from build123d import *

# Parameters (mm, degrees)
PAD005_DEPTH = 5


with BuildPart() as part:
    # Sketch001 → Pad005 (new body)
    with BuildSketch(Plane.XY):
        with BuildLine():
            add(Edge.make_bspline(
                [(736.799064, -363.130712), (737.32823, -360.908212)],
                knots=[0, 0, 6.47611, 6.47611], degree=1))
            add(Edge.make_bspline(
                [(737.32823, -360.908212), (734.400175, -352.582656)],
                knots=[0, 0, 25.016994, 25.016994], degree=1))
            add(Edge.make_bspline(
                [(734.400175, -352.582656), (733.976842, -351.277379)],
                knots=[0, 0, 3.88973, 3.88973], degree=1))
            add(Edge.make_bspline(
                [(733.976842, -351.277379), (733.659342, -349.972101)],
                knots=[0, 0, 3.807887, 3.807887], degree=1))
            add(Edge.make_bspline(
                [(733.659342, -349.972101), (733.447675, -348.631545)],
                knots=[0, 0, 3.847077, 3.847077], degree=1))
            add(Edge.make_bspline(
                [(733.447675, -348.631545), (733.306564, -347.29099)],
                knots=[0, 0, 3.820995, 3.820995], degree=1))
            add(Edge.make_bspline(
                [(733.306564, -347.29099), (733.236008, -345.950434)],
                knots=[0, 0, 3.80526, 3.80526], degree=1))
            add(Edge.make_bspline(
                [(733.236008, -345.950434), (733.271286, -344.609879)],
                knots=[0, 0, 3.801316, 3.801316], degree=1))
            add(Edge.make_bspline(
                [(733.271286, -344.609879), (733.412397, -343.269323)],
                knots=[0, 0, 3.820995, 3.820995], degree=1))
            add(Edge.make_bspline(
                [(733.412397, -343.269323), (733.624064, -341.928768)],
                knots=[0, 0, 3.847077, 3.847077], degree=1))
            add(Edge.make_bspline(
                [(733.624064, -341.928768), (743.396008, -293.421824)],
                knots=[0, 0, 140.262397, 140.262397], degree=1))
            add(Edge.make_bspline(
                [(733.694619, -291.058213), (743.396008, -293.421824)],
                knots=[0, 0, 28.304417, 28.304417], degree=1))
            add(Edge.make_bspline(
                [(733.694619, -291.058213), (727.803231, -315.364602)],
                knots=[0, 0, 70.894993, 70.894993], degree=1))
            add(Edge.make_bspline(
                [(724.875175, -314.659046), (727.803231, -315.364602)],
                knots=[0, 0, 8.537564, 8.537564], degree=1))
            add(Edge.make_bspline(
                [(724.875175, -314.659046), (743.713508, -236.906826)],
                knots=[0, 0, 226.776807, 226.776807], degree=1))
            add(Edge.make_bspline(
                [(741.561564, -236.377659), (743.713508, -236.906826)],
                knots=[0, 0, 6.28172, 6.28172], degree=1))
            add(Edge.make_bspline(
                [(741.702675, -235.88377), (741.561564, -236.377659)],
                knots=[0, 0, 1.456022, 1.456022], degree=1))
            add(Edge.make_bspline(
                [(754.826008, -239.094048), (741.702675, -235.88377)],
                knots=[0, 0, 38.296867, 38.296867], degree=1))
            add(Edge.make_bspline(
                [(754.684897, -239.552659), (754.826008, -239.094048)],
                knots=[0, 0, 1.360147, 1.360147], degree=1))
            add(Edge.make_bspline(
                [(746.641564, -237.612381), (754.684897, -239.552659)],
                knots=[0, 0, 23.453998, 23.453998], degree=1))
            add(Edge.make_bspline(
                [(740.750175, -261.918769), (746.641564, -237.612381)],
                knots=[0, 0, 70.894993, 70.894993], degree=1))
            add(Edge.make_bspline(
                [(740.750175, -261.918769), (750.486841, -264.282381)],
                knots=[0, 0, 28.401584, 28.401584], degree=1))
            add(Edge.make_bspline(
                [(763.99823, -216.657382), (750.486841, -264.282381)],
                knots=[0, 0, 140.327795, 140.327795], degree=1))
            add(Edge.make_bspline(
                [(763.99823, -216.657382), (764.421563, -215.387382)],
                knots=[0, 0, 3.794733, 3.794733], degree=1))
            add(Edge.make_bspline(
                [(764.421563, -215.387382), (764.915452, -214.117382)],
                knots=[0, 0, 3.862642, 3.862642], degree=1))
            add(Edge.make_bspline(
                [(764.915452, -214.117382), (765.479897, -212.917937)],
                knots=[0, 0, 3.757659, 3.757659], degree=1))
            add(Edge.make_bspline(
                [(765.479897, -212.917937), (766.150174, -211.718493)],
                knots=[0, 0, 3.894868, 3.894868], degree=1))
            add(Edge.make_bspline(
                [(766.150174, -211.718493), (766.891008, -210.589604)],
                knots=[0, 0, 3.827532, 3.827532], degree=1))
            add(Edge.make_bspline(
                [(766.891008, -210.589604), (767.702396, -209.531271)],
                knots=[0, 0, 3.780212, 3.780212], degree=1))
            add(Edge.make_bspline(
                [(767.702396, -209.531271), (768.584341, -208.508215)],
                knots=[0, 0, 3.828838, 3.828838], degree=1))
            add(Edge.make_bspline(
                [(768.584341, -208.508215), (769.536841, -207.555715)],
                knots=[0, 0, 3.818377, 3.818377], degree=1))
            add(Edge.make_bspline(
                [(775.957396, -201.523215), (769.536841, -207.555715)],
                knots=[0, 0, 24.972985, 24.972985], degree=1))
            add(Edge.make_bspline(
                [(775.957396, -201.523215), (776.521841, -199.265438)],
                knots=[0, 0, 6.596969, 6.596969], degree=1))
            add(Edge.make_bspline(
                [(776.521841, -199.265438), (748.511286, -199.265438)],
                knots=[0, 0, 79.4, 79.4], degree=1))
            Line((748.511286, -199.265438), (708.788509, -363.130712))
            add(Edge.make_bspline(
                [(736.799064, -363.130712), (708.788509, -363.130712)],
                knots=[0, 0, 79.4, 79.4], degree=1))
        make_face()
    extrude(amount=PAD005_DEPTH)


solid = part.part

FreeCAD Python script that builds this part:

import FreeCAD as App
import Part
import Sketcher

doc = App.newDocument("Part")
body = doc.addObject("PartDesign::Body", "Body")

# Sketch on XY plane
sketch1 = doc.addObject("Sketcher::SketchObject", "Sketch")
body.addObject(sketch1)
sketch1.AttachmentSupport = (doc.XY_Plane, [""])
sketch1.MapMode = "FlatFace"
sketch1.addGeometry([
    Part.BSplineCurve([App.Vector(736.799064, -363.130712, 0), App.Vector(737.32823, -360.908212, 0)], [2, 2], [0, 6.47611], False, 1, [1, 1], False),  # 0
    Part.BSplineCurve([App.Vector(737.32823, -360.908212, 0), App.Vector(734.400175, -352.582656, 0)], [2, 2], [0, 25.016994], False, 1, [1, 1], False),  # 1
    Part.BSplineCurve([App.Vector(734.400175, -352.582656, 0), App.Vector(733.976842, -351.277379, 0)], [2, 2], [0, 3.88973], False, 1, [1, 1], False),  # 2
    Part.BSplineCurve([App.Vector(733.976842, -351.277379, 0), App.Vector(733.659342, -349.972101, 0)], [2, 2], [0, 3.807887], False, 1, [1, 1], False),  # 3
    Part.BSplineCurve([App.Vector(733.659342, -349.972101, 0), App.Vector(733.447675, -348.631545, 0)], [2, 2], [0, 3.847077], False, 1, [1, 1], False),  # 4
    Part.BSplineCurve([App.Vector(733.447675, -348.631545, 0), App.Vector(733.306564, -347.29099, 0)], [2, 2], [0, 3.820995], False, 1, [1, 1], False),  # 5
    Part.BSplineCurve([App.Vector(733.306564, -347.29099, 0), App.Vector(733.236008, -345.950434, 0)], [2, 2], [0, 3.80526], False, 1, [1, 1], False),  # 6
    Part.BSplineCurve([App.Vector(733.236008, -345.950434, 0), App.Vector(733.271286, -344.609879, 0)], [2, 2], [0, 3.801316], False, 1, [1, 1], False),  # 7
    Part.BSplineCurve([App.Vector(733.271286, -344.609879, 0), App.Vector(733.412397, -343.269323, 0)], [2, 2], [0, 3.820995], False, 1, [1, 1], False),  # 8
    Part.BSplineCurve([App.Vector(733.412397, -343.269323, 0), App.Vector(733.624064, -341.928768, 0)], [2, 2], [0, 3.847077], False, 1, [1, 1], False),  # 9
    Part.BSplineCurve([App.Vector(733.624064, -341.928768, 0), App.Vector(743.396008, -293.421824, 0)], [2, 2], [0, 140.262397], False, 1, [1, 1], False),  # 10
    Part.BSplineCurve([App.Vector(733.694619, -291.058213, 0), App.Vector(743.396008, -293.421824, 0)], [2, 2], [0, 28.304417], False, 1, [1, 1], False),  # 11
    Part.BSplineCurve([App.Vector(733.694619, -291.058213, 0), App.Vector(727.803231, -315.364602, 0)], [2, 2], [0, 70.894993], False, 1, [1, 1], False),  # 12
    Part.BSplineCurve([App.Vector(724.875175, -314.659046, 0), App.Vector(727.803231, -315.364602, 0)], [2, 2], [0, 8.537564], False, 1, [1, 1], False),  # 13
    Part.BSplineCurve([App.Vector(724.875175, -314.659046, 0), App.Vector(743.713508, -236.906826, 0)], [2, 2], [0, 226.776807], False, 1, [1, 1], False),  # 14
    Part.BSplineCurve([App.Vector(741.561564, -236.377659, 0), App.Vector(743.713508, -236.906826, 0)], [2, 2], [0, 6.28172], False, 1, [1, 1], False),  # 15
    Part.BSplineCurve([App.Vector(741.702675, -235.88377, 0), App.Vector(741.561564, -236.377659, 0)], [2, 2], [0, 1.456022], False, 1, [1, 1], False),  # 16
    Part.BSplineCurve([App.Vector(754.826008, -239.094048, 0), App.Vector(741.702675, -235.88377, 0)], [2, 2], [0, 38.296867], False, 1, [1, 1], False),  # 17
    Part.BSplineCurve([App.Vector(754.684897, -239.552659, 0), App.Vector(754.826008, -239.094048, 0)], [2, 2], [0, 1.360147], False, 1, [1, 1], False),  # 18
    Part.BSplineCurve([App.Vector(746.641564, -237.612381, 0), App.Vector(754.684897, -239.552659, 0)], [2, 2], [0, 23.453998], False, 1, [1, 1], False),  # 19
    Part.BSplineCurve([App.Vector(740.750175, -261.918769, 0), App.Vector(746.641564, -237.612381, 0)], [2, 2], [0, 70.894993], False, 1, [1, 1], False),  # 20
    Part.BSplineCurve([App.Vector(740.750175, -261.918769, 0), App.Vector(750.486841, -264.282381, 0)], [2, 2], [0, 28.401584], False, 1, [1, 1], False),  # 21
    Part.BSplineCurve([App.Vector(763.99823, -216.657382, 0), App.Vector(750.486841, -264.282381, 0)], [2, 2], [0, 140.327795], False, 1, [1, 1], False),  # 22
    Part.BSplineCurve([App.Vector(763.99823, -216.657382, 0), App.Vector(764.421563, -215.387382, 0)], [2, 2], [0, 3.794733], False, 1, [1, 1], False),  # 23
    Part.BSplineCurve([App.Vector(764.421563, -215.387382, 0), App.Vector(764.915452, -214.117382, 0)], [2, 2], [0, 3.862642], False, 1, [1, 1], False),  # 24
    Part.BSplineCurve([App.Vector(764.915452, -214.117382, 0), App.Vector(765.479897, -212.917937, 0)], [2, 2], [0, 3.757659], False, 1, [1, 1], False),  # 25
    Part.BSplineCurve([App.Vector(765.479897, -212.917937, 0), App.Vector(766.150174, -211.718493, 0)], [2, 2], [0, 3.894868], False, 1, [1, 1], False),  # 26
    Part.BSplineCurve([App.Vector(766.150174, -211.718493, 0), App.Vector(766.891008, -210.589604, 0)], [2, 2], [0, 3.827532], False, 1, [1, 1], False),  # 27
    Part.BSplineCurve([App.Vector(766.891008, -210.589604, 0), App.Vector(767.702396, -209.531271, 0)], [2, 2], [0, 3.780212], False, 1, [1, 1], False),  # 28
    Part.BSplineCurve([App.Vector(767.702396, -209.531271, 0), App.Vector(768.584341, -208.508215, 0)], [2, 2], [0, 3.828838], False, 1, [1, 1], False),  # 29
    Part.BSplineCurve([App.Vector(768.584341, -208.508215, 0), App.Vector(769.536841, -207.555715, 0)], [2, 2], [0, 3.818377], False, 1, [1, 1], False),  # 30
    Part.BSplineCurve([App.Vector(775.957396, -201.523215, 0), App.Vector(769.536841, -207.555715, 0)], [2, 2], [0, 24.972985], False, 1, [1, 1], False),  # 31
    Part.BSplineCurve([App.Vector(775.957396, -201.523215, 0), App.Vector(776.521841, -199.265438, 0)], [2, 2], [0, 6.596969], False, 1, [1, 1], False),  # 32
    Part.BSplineCurve([App.Vector(776.521841, -199.265438, 0), App.Vector(748.511286, -199.265438, 0)], [2, 2], [0, 79.4], False, 1, [1, 1], False),  # 33
    Part.LineSegment(App.Vector(748.511286, -199.265438, 0), App.Vector(708.788509, -363.130712, 0)),  # 34
    Part.BSplineCurve([App.Vector(736.799064, -363.130712, 0), App.Vector(708.788509, -363.130712, 0)], [2, 2], [0, 79.4], False, 1, [1, 1], False),  # 35
], False)
sketch1.addConstraint([
    Sketcher.Constraint("Block", 0),
    Sketcher.Constraint("Block", 1),
    Sketcher.Constraint("Block", 2),
    Sketcher.Constraint("Block", 3),
    Sketcher.Constraint("Block", 4),
    Sketcher.Constraint("Block", 5),
    Sketcher.Constraint("Block", 6),
    Sketcher.Constraint("Block", 7),
    Sketcher.Constraint("Block", 8),
    Sketcher.Constraint("Block", 9),
    Sketcher.Constraint("Block", 10),
    Sketcher.Constraint("Block", 11),
    Sketcher.Constraint("Block", 12),
    Sketcher.Constraint("Block", 13),
    Sketcher.Constraint("Block", 14),
    Sketcher.Constraint("Block", 15),
    Sketcher.Constraint("Block", 16),
    Sketcher.Constraint("Block", 17),
    Sketcher.Constraint("Block", 18),
    Sketcher.Constraint("Block", 19),
    Sketcher.Constraint("Block", 20),
    Sketcher.Constraint("Block", 21),
    Sketcher.Constraint("Block", 22),
    Sketcher.Constraint("Block", 23),
    Sketcher.Constraint("Block", 24),
    Sketcher.Constraint("Block", 25),
    Sketcher.Constraint("Block", 26),
    Sketcher.Constraint("Block", 27),
    Sketcher.Constraint("Block", 28),
    Sketcher.Constraint("Block", 29),
    Sketcher.Constraint("Block", 30),
    Sketcher.Constraint("Block", 31),
    Sketcher.Constraint("Block", 32),
    Sketcher.Constraint("Block", 33),
    Sketcher.Constraint("Block", 35),
    Sketcher.Constraint("Coincident", 33, 2, 34, 1),
    Sketcher.Constraint("Coincident", 34, 2, 35, 2),
])
pad1 = doc.addObject("PartDesign::Pad", "Pad")
body.addObject(pad1)
pad1.Profile = sketch1
pad1.Length = 5

doc.recompute()
